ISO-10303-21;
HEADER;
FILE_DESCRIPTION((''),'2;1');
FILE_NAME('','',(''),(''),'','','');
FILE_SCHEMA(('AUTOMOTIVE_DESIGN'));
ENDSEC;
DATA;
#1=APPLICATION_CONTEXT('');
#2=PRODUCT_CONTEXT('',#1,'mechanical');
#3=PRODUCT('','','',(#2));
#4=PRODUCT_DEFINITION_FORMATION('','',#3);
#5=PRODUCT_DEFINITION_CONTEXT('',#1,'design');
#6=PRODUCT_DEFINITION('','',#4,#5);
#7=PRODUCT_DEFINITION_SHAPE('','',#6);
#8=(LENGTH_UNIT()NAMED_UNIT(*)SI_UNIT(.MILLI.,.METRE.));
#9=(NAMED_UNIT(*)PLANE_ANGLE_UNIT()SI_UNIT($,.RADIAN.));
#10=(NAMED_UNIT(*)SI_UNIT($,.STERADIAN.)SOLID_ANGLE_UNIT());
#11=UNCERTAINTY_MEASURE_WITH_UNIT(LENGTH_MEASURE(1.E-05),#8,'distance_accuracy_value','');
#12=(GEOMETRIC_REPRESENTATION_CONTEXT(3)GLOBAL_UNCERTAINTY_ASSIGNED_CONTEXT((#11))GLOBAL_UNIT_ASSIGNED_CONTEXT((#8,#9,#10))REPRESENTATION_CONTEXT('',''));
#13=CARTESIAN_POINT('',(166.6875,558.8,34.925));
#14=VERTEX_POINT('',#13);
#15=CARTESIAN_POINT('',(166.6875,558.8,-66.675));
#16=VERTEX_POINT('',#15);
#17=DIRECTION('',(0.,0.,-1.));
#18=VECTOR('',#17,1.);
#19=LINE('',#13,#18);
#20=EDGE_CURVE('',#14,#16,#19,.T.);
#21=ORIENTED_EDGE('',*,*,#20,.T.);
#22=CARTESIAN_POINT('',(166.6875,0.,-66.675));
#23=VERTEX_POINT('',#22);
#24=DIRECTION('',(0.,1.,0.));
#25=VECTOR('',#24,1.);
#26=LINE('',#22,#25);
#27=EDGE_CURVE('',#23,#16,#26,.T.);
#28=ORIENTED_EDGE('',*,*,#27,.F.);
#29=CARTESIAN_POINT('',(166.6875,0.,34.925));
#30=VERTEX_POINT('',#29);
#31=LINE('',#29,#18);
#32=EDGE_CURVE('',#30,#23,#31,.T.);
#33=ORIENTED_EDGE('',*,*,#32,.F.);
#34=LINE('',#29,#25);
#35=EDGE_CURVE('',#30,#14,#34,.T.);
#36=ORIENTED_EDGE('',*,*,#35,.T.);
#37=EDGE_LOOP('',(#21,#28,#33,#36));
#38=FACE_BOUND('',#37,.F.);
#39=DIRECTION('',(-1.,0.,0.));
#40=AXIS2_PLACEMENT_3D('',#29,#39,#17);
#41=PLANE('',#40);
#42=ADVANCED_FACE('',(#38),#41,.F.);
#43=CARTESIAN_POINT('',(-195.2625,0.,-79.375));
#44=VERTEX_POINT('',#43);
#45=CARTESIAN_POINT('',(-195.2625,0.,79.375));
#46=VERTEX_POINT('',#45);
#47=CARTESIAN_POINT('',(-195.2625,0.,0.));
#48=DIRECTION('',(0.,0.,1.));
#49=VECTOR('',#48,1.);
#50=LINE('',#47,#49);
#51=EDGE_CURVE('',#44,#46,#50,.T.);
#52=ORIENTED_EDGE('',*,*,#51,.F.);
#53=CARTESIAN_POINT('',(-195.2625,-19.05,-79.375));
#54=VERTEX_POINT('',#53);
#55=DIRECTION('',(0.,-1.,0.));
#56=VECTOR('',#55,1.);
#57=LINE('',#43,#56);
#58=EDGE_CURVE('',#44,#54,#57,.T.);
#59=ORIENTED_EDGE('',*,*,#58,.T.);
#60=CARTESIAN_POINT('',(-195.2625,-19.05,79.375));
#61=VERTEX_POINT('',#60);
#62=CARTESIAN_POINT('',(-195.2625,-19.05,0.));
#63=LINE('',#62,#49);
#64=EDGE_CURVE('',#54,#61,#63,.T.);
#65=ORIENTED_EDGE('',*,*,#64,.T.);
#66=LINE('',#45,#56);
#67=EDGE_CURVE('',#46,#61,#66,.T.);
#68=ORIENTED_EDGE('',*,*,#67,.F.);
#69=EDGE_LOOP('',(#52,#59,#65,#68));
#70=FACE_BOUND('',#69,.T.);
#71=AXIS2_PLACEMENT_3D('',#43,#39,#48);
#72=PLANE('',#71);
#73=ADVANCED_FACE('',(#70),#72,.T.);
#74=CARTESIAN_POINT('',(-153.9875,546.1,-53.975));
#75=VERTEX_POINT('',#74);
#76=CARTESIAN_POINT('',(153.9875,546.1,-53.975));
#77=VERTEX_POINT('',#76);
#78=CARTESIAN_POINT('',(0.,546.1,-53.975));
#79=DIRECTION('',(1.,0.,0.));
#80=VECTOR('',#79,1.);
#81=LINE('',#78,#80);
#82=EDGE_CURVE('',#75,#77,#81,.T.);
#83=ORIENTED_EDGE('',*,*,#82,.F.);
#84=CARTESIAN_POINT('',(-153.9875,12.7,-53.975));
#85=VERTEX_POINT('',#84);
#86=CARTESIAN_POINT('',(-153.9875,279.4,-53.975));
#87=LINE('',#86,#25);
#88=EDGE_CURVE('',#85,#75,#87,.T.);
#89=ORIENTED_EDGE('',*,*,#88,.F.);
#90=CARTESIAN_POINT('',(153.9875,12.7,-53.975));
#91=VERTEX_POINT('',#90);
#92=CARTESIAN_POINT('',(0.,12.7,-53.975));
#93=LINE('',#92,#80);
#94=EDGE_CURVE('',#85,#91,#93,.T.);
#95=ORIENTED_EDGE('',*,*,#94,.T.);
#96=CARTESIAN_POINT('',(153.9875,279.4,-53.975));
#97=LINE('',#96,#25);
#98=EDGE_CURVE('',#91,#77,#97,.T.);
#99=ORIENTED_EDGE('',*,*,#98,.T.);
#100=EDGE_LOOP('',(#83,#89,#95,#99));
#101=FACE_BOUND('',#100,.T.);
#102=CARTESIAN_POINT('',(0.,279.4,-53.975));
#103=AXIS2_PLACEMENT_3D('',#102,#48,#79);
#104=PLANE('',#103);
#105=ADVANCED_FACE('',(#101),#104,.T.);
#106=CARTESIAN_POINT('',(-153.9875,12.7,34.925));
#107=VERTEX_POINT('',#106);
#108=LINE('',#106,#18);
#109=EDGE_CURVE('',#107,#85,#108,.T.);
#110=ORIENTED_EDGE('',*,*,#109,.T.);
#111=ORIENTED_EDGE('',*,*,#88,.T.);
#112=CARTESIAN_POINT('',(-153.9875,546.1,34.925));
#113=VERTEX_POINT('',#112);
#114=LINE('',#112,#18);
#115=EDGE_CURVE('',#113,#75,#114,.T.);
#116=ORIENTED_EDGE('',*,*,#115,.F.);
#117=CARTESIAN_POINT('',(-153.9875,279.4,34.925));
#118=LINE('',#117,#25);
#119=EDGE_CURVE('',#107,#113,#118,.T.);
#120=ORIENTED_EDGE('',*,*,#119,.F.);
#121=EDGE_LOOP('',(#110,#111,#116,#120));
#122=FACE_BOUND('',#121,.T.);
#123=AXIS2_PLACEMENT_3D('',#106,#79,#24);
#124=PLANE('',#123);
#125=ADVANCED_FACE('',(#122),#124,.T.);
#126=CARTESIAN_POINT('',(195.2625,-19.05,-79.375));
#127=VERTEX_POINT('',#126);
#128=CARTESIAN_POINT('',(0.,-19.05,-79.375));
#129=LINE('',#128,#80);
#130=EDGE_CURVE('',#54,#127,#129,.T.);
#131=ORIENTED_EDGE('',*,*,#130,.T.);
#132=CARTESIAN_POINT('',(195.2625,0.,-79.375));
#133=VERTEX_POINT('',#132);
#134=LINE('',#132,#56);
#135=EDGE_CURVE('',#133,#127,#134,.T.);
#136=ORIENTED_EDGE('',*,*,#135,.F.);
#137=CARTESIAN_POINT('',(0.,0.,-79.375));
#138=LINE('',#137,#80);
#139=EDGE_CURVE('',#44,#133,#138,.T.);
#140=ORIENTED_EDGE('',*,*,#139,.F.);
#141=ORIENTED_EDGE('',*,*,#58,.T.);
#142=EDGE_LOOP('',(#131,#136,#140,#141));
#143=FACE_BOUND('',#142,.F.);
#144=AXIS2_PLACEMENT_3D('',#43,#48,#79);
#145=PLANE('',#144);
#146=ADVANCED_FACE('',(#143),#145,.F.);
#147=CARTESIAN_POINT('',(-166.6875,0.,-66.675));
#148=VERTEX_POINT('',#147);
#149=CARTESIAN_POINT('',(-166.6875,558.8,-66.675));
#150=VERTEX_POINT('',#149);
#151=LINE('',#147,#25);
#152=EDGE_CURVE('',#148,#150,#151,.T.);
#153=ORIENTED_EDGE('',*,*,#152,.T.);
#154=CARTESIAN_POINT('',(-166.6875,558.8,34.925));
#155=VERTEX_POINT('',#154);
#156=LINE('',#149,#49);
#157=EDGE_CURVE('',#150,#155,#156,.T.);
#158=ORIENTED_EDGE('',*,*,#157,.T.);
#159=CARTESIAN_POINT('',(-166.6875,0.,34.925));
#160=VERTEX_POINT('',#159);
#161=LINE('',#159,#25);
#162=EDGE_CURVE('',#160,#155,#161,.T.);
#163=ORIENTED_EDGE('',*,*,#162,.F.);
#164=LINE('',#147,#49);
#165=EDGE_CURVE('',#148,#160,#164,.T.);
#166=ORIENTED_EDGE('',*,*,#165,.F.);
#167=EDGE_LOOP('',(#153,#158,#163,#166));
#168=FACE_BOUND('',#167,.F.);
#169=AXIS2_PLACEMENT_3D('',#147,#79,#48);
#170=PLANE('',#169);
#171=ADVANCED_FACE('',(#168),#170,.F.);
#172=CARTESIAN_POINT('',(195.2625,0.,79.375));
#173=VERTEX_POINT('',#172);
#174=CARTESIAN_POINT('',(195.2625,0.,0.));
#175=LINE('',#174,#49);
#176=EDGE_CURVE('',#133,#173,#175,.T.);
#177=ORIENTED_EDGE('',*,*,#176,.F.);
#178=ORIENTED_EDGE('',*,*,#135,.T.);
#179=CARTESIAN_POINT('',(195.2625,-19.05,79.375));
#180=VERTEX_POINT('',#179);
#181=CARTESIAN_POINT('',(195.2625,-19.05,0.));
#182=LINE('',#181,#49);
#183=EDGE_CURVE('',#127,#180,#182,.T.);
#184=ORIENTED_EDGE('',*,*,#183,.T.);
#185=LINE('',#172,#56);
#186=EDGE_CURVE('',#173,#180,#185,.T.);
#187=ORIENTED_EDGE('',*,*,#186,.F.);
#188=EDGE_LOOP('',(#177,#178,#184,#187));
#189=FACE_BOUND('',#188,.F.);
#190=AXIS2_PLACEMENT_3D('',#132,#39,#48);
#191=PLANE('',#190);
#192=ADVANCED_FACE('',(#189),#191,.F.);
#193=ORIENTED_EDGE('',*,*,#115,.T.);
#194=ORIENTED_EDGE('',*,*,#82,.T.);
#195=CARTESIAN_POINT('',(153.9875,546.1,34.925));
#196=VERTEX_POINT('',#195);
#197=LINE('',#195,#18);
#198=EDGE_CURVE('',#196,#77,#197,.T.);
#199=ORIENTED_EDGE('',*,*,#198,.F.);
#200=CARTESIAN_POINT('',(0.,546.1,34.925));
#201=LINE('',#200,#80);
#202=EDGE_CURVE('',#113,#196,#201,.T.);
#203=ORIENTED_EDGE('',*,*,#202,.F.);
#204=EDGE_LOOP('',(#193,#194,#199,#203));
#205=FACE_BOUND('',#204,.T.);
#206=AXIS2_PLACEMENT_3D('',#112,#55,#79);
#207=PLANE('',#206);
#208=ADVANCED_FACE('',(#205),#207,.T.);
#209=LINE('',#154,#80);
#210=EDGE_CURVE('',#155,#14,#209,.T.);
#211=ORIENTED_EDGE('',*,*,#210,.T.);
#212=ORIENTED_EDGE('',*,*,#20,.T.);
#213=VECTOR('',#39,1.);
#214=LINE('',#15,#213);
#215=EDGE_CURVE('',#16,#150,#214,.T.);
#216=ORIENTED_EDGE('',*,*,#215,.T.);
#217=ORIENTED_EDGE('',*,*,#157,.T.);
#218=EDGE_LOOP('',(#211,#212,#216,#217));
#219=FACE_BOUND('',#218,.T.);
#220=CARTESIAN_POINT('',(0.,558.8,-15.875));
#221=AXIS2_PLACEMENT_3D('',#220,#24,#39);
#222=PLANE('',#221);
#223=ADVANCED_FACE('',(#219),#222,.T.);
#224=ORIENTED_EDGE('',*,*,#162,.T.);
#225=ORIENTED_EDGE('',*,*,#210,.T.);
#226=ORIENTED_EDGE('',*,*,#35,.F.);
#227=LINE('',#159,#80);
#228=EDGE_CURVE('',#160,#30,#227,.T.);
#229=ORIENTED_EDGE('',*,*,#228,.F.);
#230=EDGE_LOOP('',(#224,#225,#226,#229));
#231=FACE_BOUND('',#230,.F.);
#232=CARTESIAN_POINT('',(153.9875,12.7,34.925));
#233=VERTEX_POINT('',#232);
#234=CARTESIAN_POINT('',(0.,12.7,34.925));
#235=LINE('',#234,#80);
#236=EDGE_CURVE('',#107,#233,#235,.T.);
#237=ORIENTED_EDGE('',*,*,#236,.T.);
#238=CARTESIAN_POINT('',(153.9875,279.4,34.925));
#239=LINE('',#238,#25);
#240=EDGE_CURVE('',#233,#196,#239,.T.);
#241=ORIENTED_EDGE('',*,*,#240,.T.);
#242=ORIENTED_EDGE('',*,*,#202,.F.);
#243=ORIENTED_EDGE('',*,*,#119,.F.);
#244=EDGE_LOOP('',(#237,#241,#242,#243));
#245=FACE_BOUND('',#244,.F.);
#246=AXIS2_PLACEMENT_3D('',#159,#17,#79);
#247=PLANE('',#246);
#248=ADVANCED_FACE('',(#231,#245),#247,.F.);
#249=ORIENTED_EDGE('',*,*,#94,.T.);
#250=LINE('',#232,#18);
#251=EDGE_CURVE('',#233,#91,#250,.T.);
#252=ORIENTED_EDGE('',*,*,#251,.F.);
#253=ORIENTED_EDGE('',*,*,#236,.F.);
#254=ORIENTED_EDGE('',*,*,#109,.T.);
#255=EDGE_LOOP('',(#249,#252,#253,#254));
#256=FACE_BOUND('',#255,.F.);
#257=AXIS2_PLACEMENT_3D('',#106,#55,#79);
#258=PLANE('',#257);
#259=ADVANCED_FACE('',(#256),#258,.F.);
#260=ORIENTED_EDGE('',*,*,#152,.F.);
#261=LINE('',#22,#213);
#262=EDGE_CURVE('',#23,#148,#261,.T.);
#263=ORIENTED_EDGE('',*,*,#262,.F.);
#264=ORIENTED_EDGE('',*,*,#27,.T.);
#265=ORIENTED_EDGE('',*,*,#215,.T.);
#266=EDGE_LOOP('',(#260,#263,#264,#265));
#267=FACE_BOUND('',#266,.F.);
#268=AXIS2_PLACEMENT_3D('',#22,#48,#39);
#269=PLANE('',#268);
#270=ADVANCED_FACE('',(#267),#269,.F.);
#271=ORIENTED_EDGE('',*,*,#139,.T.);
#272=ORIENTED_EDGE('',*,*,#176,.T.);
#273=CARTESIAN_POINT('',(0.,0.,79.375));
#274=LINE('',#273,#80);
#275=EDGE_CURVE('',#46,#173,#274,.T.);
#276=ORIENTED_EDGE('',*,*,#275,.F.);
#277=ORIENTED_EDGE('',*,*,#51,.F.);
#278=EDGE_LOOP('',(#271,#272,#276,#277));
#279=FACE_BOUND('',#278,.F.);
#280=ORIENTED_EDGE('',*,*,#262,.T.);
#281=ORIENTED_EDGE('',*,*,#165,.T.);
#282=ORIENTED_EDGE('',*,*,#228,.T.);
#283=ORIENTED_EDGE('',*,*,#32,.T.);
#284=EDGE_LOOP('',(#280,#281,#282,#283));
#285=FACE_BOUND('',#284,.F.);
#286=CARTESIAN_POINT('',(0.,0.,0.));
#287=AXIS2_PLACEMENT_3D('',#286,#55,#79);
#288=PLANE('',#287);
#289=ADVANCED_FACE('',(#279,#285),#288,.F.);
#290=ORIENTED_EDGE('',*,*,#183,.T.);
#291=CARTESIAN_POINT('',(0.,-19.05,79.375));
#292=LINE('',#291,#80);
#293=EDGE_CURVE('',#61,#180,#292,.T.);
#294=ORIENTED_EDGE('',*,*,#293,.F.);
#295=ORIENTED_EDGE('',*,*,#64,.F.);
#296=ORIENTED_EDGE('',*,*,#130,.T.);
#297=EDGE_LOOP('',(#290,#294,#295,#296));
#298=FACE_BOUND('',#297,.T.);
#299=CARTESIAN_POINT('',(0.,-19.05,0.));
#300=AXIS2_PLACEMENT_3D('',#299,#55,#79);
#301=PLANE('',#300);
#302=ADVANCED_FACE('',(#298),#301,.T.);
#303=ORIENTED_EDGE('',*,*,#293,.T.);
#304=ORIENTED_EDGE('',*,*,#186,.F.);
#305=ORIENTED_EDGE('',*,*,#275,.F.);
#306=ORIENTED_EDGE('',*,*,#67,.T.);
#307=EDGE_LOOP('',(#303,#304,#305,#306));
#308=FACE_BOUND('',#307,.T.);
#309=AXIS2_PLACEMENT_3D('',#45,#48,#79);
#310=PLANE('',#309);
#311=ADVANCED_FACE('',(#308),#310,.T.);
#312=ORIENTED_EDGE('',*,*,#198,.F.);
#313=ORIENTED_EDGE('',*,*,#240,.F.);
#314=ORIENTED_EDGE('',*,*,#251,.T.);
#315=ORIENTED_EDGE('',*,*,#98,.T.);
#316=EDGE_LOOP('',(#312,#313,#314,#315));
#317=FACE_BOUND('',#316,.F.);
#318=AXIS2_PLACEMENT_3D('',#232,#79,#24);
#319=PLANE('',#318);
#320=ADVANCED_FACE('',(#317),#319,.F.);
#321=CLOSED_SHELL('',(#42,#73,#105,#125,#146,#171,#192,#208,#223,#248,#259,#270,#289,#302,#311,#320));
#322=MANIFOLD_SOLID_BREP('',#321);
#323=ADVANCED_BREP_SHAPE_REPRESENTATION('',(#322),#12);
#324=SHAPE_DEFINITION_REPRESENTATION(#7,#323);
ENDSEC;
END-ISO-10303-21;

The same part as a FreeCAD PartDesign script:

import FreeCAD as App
import Part
import Sketcher
Q = App.Units.Quantity

doc = App.newDocument("Part")
body = doc.addObject("PartDesign::Body", "Body")

# Sketch on XZ plane
sketch1 = body.newObject("Sketcher::SketchObject", "Sketch")
sketch1.AttachmentSupport = (doc.getObject("XZ_Plane"), [""])
sketch1.MapMode = "FlatFace"
sketch1.addGeometry([
    Part.LineSegment(App.Vector(-195, 79, 0), App.Vector(-195, -79, 0)),
    Part.LineSegment(App.Vector(-195, -79, 0), App.Vector(195, -79, 0)),
    Part.LineSegment(App.Vector(195, -79, 0), App.Vector(195, 79, 0)),
    Part.LineSegment(App.Vector(195, 79, 0), App.Vector(-195, 79, 0)),
], False)
sketch1.addConstraint([
    Sketcher.Constraint("Coincident", 0, 2, 1, 1),
    Sketcher.Constraint("Coincident", 1, 2, 2, 1),
    Sketcher.Constraint("Coincident", 2, 2, 3, 1),
    Sketcher.Constraint("Coincident", 3, 2, 0, 1),
    Sketcher.Constraint("Vertical", 0),
    Sketcher.Constraint("Horizontal", 1),
    Sketcher.Constraint("Vertical", 2),
    Sketcher.Constraint("Horizontal", 3),
    Sketcher.Constraint("Symmetric", 0, 2, 2, 2, -1, 1),
    Sketcher.Constraint("DistanceY", 0, 2, 0, 1, Q("6.25 in")),
    Sketcher.Constraint("DistanceX", 1, 1, 1, 2, Q("15.375 in")),
])
pad1 = body.newObject("PartDesign::Pad", "Pad")
pad1.Profile = sketch1
pad1.Length = Q("0.75 in")

# Sketch on XZ plane
sketch2 = body.newObject("Sketcher::SketchObject", "Sketch001")
sketch2.AttachmentSupport = (doc.getObject("XZ_Plane"), [""])
sketch2.MapMode = "FlatFace"
sketch2.addGeometry([
    Part.LineSegment(App.Vector(167, -67, 0), App.Vector(-167, -67, 0)),
    Part.LineSegment(App.Vector(-167, -67, 0), App.Vector(-167, 35, 0)),
    Part.LineSegment(App.Vector(-167, 35, 0), App.Vector(167, 35, 0)),
    Part.LineSegment(App.Vector(167, 35, 0), App.Vector(167, -67, 0)),
], False)
sketch2.addConstraint([
    Sketcher.Constraint("Coincident", 0, 2, 1, 1),
    Sketcher.Constraint("Coincident", 1, 2, 2, 1),
    Sketcher.Constraint("Coincident", 2, 2, 3, 1),
    Sketcher.Constraint("Coincident", 3, 2, 0, 1),
    Sketcher.Constraint("Horizontal", 0),
    Sketcher.Constraint("Vertical", 1),
    Sketcher.Constraint("Horizontal", 2),
    Sketcher.Constraint("Vertical", 3),
    Sketcher.Constraint("DistanceY", 1, 1, 1, 2, Q("4 in")),
    Sketcher.Constraint("DistanceX", 0, 2, 0, 1, Q("13.125 in")),
    Sketcher.Constraint("DistanceX", 0, 2, -1, 1, Q("6.5625 in")),
    Sketcher.Constraint("DistanceY", 0, 2, -1, 1, Q("2.625 in")),
])
pad2 = body.newObject("PartDesign::Pad", "Pad001")
pad2.Profile = sketch2
pad2.Length = Q("22 in")
pad2.Reversed = True

# Sketch on XY plane
sketch3 = body.newObject("Sketcher::SketchObject", "Sketch002")
sketch3.AttachmentSupport = (doc.getObject("XY_Plane"), [""])
sketch3.MapMode = "FlatFace"
sketch3.AttachmentOffset = App.Placement(App.Vector(0, 0, 1.375 * 25.4), App.Rotation())
sketch3.addGeometry([
    Part.LineSegment(App.Vector(-154, 546, 0), App.Vector(-154, 13, 0)),
    Part.LineSegment(App.Vector(-154, 13, 0), App.Vector(154, 13, 0)),
    Part.LineSegment(App.Vector(154, 13, 0), App.Vector(154, 546, 0)),
    Part.LineSegment(App.Vector(154, 546, 0), App.Vector(-154, 546, 0)),
], False)
sketch3.addConstraint([
    Sketcher.Constraint("Coincident", 0, 2, 1, 1),
    Sketcher.Constraint("Coincident", 1, 2, 2, 1),
    Sketcher.Constraint("Coincident", 2, 2, 3, 1),
    Sketcher.Constraint("Coincident", 3, 2, 0, 1),
    Sketcher.Constraint("Vertical", 0),
    Sketcher.Constraint("Horizontal", 1),
    Sketcher.Constraint("Vertical", 2),
    Sketcher.Constraint("Horizontal", 3),
    Sketcher.Constraint("DistanceY", 0, 2, 0, 1, Q("21 in")),
    Sketcher.Constraint("DistanceY", -1, 1, 0, 2, Q("0.5 in")),
    Sketcher.Constraint("DistanceX", 1, 1, 1, 2, Q("12.125 in")),
    Sketcher.Constraint("DistanceX", 0, 2, -1, 1, Q("6.0625 in")),
])
pocket1 = body.newObject("PartDesign::Pocket", "Pocket")
pocket1.Profile = sketch3
pocket1.Length = Q("3.5 in")

doc.recompute()
